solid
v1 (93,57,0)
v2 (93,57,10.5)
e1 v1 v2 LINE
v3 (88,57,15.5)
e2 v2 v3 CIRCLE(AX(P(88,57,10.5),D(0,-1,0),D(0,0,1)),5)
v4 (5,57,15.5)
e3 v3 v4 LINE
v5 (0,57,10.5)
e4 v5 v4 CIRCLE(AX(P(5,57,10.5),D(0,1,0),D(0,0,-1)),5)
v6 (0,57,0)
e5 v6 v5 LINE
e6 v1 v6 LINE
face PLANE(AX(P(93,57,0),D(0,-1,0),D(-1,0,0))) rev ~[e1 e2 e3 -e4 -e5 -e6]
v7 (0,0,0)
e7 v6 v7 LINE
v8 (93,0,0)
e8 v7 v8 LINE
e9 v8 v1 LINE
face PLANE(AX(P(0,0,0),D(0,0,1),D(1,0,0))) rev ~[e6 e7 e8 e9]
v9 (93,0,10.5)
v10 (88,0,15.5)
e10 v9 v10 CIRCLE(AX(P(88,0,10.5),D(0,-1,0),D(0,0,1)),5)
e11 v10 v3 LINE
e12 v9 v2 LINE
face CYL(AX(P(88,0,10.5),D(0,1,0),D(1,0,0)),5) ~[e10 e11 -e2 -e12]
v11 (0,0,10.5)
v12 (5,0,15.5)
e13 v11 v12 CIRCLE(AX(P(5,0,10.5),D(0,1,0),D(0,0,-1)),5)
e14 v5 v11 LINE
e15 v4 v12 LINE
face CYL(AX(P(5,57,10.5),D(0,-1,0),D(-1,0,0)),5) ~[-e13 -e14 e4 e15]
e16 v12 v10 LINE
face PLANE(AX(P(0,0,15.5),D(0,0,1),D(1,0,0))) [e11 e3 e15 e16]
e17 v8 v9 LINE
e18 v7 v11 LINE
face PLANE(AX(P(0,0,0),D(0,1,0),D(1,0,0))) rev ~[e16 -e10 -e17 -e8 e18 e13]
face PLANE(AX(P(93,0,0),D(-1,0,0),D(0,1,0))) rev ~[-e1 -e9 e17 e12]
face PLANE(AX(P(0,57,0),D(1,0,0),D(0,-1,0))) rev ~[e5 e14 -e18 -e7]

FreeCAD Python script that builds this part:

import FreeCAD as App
import Part
import Sketcher

V = App.Vector


def edges_at(feature, points):
    """Names of the edges that pass closest to the given points."""
    edges = feature.Shape.Edges
    near = lambda p: min(range(len(edges)), key=lambda i: edges[i].distToShape(Part.Vertex(*p))[0])
    return sorted({f"Edge{near(p) + 1}" for p in points})

doc = App.newDocument("Part")
body = doc.addObject("PartDesign::Body", "Body")

sketch1 = body.newObject("Sketcher::SketchObject", "Sketch")
sketch1.AttachmentSupport = (doc.getObject("XY_Plane"), [""])
sketch1.MapMode = "FlatFace"
sketch1.addGeometry([
    Part.LineSegment(V(0, 57, 0), V(0, 0, 0)),
    Part.LineSegment(V(0, 0, 0), V(93, 0, 0)),
    Part.LineSegment(V(93, 0, 0), V(93, 57, 0)),
    Part.LineSegment(V(93, 57, 0), V(0, 57, 0)),
], False)
sketch1.addConstraint([
    Sketcher.Constraint("Coincident", 0, 2, 1, 1),
    Sketcher.Constraint("Coincident", 1, 2, 2, 1),
    Sketcher.Constraint("Coincident", 2, 2, 3, 1),
    Sketcher.Constraint("Coincident", 3, 2, 0, 1),
    Sketcher.Constraint("Vertical", 0),
    Sketcher.Constraint("Horizontal", 1),
    Sketcher.Constraint("Vertical", 2),
    Sketcher.Constraint("Horizontal", 3),
    Sketcher.Constraint("Coincident", 0, 2, -1, 1),
    Sketcher.Constraint("DistanceX", 1, 1, 1, 2, 93.0),
    Sketcher.Constraint("DistanceY", 0, 2, 0, 1, 57.0),
])
pad1 = body.newObject("PartDesign::Pad", "Pad")
pad1.Profile = sketch1
pad1.Length = 15.5
doc.recompute()

fillet = body.newObject("PartDesign::Fillet", "Fillet")
fillet.Base = (pad1, edges_at(pad1, [(0, 28.5, 15.5), (93, 28.5, 15.5)]))
fillet.Radius = 5

doc.recompute()
